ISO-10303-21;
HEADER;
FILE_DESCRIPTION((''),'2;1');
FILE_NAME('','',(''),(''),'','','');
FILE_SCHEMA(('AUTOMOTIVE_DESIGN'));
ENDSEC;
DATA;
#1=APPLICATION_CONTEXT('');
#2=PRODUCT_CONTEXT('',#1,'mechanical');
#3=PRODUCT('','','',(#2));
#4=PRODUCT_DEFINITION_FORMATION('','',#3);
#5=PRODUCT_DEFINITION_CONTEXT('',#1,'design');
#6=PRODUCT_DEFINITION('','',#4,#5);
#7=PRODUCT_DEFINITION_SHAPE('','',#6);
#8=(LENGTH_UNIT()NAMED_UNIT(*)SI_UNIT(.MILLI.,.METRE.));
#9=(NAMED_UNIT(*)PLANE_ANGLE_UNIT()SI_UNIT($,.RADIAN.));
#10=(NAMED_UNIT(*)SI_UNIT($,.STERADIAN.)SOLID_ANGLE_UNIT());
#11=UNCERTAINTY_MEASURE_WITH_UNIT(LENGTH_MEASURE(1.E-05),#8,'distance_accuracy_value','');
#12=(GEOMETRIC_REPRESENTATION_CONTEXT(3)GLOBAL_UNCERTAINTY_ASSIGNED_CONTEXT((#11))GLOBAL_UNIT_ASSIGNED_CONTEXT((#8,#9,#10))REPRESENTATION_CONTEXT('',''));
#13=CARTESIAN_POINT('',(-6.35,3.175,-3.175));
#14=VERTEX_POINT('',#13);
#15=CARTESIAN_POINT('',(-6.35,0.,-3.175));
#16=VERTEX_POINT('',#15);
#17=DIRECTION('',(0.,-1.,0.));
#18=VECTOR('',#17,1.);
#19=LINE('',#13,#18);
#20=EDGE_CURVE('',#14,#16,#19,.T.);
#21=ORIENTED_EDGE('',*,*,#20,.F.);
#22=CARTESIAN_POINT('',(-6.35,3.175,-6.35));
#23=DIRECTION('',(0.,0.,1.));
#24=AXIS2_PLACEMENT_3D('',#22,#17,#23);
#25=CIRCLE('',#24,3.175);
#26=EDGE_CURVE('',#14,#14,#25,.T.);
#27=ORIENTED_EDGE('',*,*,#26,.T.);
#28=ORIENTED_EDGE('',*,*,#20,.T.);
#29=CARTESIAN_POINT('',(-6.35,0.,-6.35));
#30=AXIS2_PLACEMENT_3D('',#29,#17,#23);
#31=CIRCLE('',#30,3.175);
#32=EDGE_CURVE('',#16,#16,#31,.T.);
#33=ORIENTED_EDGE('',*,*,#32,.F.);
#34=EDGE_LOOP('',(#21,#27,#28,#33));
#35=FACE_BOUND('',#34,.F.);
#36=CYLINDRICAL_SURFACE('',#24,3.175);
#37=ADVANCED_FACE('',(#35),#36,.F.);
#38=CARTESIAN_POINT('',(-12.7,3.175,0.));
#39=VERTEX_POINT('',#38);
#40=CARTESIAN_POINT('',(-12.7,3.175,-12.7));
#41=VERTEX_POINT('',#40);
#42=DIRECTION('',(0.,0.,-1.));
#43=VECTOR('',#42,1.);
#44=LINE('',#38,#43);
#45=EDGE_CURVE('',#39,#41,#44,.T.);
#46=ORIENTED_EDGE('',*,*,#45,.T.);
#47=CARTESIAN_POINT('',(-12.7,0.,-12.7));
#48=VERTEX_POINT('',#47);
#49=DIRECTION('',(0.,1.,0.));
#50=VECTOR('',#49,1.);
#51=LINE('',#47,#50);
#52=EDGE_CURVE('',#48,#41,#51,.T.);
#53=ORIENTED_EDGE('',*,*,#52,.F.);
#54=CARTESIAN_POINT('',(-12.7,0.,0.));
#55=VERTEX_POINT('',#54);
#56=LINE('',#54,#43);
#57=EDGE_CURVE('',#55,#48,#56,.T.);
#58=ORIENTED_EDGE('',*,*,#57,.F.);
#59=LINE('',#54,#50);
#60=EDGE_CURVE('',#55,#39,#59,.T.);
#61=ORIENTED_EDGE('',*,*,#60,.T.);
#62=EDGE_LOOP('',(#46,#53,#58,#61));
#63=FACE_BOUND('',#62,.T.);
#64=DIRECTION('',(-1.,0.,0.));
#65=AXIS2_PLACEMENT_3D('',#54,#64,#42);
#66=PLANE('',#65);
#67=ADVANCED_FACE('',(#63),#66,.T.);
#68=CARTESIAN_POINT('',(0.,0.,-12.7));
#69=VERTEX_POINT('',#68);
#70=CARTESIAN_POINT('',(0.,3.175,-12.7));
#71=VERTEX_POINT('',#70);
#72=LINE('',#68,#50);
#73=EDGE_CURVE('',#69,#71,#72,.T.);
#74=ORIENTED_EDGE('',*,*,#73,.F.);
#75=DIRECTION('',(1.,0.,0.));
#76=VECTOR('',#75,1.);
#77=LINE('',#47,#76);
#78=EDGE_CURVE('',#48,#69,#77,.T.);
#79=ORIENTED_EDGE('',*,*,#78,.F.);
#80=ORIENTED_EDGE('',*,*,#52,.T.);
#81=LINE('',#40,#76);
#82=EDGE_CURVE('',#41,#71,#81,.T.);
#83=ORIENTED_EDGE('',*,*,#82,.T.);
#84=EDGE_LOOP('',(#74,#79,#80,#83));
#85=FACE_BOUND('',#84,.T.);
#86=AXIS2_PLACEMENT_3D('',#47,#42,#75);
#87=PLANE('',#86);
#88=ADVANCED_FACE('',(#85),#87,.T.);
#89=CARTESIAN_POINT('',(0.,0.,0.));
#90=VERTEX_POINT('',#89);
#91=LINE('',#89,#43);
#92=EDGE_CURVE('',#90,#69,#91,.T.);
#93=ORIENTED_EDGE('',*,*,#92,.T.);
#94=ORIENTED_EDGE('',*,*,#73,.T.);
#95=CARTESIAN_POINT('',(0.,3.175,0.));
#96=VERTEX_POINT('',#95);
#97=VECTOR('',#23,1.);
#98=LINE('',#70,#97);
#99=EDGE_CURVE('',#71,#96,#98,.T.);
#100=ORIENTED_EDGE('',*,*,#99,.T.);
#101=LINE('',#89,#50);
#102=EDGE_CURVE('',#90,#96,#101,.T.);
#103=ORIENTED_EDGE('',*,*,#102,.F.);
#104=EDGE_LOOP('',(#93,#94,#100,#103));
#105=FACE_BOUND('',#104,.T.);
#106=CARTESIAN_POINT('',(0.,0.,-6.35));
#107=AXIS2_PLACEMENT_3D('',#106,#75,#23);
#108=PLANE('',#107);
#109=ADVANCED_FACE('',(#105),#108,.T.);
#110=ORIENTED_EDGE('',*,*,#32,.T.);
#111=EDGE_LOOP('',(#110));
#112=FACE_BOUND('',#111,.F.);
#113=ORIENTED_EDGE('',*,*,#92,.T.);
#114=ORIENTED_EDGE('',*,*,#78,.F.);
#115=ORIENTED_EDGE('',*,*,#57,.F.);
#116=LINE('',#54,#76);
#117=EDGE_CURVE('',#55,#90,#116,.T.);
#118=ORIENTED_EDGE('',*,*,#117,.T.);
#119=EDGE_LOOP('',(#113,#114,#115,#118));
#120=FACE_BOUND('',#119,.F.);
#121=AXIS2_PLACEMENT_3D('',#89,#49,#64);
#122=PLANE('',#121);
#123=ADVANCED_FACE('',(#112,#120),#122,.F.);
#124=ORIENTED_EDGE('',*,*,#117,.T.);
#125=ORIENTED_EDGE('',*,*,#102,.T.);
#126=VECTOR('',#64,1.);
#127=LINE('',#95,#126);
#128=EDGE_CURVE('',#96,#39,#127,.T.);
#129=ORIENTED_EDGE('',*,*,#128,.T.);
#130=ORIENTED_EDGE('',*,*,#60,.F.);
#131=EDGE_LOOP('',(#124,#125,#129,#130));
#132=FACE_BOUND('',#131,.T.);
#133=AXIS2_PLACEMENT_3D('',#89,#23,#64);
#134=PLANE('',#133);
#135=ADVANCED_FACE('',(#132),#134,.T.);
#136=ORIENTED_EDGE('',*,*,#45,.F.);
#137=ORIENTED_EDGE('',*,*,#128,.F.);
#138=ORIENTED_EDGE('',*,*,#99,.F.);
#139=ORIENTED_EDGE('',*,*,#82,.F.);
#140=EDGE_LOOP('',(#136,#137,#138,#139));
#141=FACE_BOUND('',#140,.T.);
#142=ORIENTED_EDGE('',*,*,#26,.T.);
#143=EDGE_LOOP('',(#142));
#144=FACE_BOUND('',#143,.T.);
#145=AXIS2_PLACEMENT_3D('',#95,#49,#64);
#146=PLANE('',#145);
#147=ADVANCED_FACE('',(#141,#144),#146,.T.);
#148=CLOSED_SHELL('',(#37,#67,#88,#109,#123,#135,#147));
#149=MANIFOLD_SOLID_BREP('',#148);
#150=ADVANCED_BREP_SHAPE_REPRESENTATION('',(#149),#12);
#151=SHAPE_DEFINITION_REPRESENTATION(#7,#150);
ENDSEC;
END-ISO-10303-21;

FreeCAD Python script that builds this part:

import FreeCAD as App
import Part
import Sketcher

V = App.Vector
Q = App.Units.Quantity

doc = App.newDocument("Part")
body = doc.addObject("PartDesign::Body", "Body")

# Sketch on XZ plane
sketch1 = body.newObject("Sketcher::SketchObject", "Sketch")
sketch1.AttachmentSupport = (doc.getObject("XZ_Plane"), [""])
sketch1.MapMode = "FlatFace"
sketch1.addGeometry(Part.LineSegment(V(-13, 0, 0), V(0, 0, 0)), False)
sketch1.addGeometry(Part.LineSegment(V(0, 0, 0), V(0, -13, 0)), False)
sketch1.addGeometry(Part.LineSegment(V(0, -13, 0), V(-13, -13, 0)), False)
sketch1.addGeometry(Part.LineSegment(V(-13, -13, 0), V(-13, 0, 0)), False)
sketch1.addConstraint(Sketcher.Constraint("Coincident", 0, 2, 1, 1))
sketch1.addConstraint(Sketcher.Constraint("Coincident", 1, 2, 2, 1))
sketch1.addConstraint(Sketcher.Constraint("Coincident", 2, 2, 3, 1))
sketch1.addConstraint(Sketcher.Constraint("Coincident", 3, 2, 0, 1))
sketch1.addConstraint(Sketcher.Constraint("Horizontal", 0))
sketch1.addConstraint(Sketcher.Constraint("Vertical", 1))
sketch1.addConstraint(Sketcher.Constraint("Horizontal", 2))
sketch1.addConstraint(Sketcher.Constraint("Vertical", 3))
sketch1.addConstraint(Sketcher.Constraint("Coincident", 0, 2, -1, 1))
sketch1.addConstraint(Sketcher.Constraint("Equal", 2, 1))
sketch1.addConstraint(Sketcher.Constraint("DistanceX", 0, 1, 0, 2, Q("0.5 in")))
pad1 = body.newObject("PartDesign::Pad", "Pad")
pad1.Profile = sketch1
pad1.Length = Q("0.125 in")
pad1.Reversed = True

# Sketch on XZ plane
sketch2 = body.newObject("Sketcher::SketchObject", "Sketch001")
sketch2.AttachmentSupport = (doc.getObject("XZ_Plane"), [""])
sketch2.MapMode = "FlatFace"
sketch2.AttachmentOffset = App.Placement(V(0, 0, -0.125 * 25.4), App.Rotation())
sketch2.addGeometry(Part.Circle(V(-6.3, -6.3, 0), V(0, 0, 1), 3.2), False)
sketch2.addConstraint(Sketcher.Constraint("Diameter", 0, Q("0.25 in")))
sketch2.addConstraint(Sketcher.Constraint("DistanceX", 0, 3, -1, 1, Q("0.25 in")))
sketch2.addConstraint(Sketcher.Constraint("DistanceY", 0, 3, -1, 1, Q("0.25 in")))
doc.recompute()
hole = body.newObject("PartDesign::Hole", "Hole")
hole.Profile = sketch2
hole.ThreadType = "None"
hole.Diameter = Q("0.25 in")
hole.DepthType = "ThroughAll"
hole.Reversed = True

doc.recompute()
